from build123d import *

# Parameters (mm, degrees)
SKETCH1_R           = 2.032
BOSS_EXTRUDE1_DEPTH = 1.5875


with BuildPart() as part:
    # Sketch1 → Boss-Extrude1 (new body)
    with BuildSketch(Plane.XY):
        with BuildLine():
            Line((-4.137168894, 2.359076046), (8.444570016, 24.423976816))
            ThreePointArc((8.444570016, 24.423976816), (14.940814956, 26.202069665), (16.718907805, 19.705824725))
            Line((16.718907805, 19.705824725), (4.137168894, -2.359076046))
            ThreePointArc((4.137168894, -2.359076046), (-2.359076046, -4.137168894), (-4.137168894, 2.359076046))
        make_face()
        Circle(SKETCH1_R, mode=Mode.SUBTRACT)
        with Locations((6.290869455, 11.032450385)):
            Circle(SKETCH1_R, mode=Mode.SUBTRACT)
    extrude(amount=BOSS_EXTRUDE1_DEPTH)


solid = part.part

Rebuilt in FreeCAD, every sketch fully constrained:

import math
import FreeCAD as App
import Part
import Sketcher

V = App.Vector
Q = App.Units.Quantity

doc = App.newDocument("Part")
body = doc.addObject("PartDesign::Body", "Body")

# Sketch on XY plane
sketch1 = body.newObject("Sketcher::SketchObject", "Sketch")
sketch1.AttachmentSupport = (doc.getObject("XY_Plane"), [""])
sketch1.MapMode = "FlatFace"
sketch1.addGeometry([
    Part.LineSegment(V(8.4, 24.4, 0), V(-4.1, 2.4, 0)),  # 0
    Part.ArcOfCircle(Part.Circle(V(0, 0, 0), V(0, 0, 1), 4.8), math.radians(150), math.radians(330)),  # 1
    Part.LineSegment(V(4.1, -2.4, 0), V(16.7, 19.7, 0)),  # 2
    Part.ArcOfCircle(Part.Circle(V(12.6, 22.1, 0), V(0, 0, 1), 4.8), math.radians(-30), math.radians(150)),  # 3
    Part.Circle(V(0, 0, 0), V(0, 0, 1), 2),  # 4
    Part.Circle(V(6.3, 11, 0), V(0, 0, 1), 2),  # 5
], False)
sketch1.addConstraint([
    Sketcher.Constraint("Tangent", 0, 2, 1, 1),
    Sketcher.Constraint("Tangent", 1, 2, 2, 1),
    Sketcher.Constraint("Tangent", 2, 2, 3, 1),
    Sketcher.Constraint("Tangent", 3, 2, 0, 1),
    Sketcher.Constraint("Coincident", 1, 3, -1, 1),
    Sketcher.Constraint("Coincident", 4, 3, -1, 1),
    Sketcher.Constraint("Equal", 1, 3),
    Sketcher.Constraint("Equal", 4, 5),
    Sketcher.Constraint("Diameter", 4, Q("0.16 in")),
    Sketcher.Constraint("Distance", 0, Q("1 in")),
    Sketcher.Constraint("Radius", 1, Q("0.1875 in")),
    Sketcher.Constraint("DistanceY", -1, 1, 3, 3, 22.064901),
    Sketcher.Constraint("DistanceX", 1, 2, 5, 3, 2.153701),
    Sketcher.Constraint("DistanceY", -1, 1, 5, 3, 11.03245),
])
pad1 = body.newObject("PartDesign::Pad", "Pad")
pad1.Profile = sketch1
pad1.Length = Q("0.0625 in")

doc.recompute()
